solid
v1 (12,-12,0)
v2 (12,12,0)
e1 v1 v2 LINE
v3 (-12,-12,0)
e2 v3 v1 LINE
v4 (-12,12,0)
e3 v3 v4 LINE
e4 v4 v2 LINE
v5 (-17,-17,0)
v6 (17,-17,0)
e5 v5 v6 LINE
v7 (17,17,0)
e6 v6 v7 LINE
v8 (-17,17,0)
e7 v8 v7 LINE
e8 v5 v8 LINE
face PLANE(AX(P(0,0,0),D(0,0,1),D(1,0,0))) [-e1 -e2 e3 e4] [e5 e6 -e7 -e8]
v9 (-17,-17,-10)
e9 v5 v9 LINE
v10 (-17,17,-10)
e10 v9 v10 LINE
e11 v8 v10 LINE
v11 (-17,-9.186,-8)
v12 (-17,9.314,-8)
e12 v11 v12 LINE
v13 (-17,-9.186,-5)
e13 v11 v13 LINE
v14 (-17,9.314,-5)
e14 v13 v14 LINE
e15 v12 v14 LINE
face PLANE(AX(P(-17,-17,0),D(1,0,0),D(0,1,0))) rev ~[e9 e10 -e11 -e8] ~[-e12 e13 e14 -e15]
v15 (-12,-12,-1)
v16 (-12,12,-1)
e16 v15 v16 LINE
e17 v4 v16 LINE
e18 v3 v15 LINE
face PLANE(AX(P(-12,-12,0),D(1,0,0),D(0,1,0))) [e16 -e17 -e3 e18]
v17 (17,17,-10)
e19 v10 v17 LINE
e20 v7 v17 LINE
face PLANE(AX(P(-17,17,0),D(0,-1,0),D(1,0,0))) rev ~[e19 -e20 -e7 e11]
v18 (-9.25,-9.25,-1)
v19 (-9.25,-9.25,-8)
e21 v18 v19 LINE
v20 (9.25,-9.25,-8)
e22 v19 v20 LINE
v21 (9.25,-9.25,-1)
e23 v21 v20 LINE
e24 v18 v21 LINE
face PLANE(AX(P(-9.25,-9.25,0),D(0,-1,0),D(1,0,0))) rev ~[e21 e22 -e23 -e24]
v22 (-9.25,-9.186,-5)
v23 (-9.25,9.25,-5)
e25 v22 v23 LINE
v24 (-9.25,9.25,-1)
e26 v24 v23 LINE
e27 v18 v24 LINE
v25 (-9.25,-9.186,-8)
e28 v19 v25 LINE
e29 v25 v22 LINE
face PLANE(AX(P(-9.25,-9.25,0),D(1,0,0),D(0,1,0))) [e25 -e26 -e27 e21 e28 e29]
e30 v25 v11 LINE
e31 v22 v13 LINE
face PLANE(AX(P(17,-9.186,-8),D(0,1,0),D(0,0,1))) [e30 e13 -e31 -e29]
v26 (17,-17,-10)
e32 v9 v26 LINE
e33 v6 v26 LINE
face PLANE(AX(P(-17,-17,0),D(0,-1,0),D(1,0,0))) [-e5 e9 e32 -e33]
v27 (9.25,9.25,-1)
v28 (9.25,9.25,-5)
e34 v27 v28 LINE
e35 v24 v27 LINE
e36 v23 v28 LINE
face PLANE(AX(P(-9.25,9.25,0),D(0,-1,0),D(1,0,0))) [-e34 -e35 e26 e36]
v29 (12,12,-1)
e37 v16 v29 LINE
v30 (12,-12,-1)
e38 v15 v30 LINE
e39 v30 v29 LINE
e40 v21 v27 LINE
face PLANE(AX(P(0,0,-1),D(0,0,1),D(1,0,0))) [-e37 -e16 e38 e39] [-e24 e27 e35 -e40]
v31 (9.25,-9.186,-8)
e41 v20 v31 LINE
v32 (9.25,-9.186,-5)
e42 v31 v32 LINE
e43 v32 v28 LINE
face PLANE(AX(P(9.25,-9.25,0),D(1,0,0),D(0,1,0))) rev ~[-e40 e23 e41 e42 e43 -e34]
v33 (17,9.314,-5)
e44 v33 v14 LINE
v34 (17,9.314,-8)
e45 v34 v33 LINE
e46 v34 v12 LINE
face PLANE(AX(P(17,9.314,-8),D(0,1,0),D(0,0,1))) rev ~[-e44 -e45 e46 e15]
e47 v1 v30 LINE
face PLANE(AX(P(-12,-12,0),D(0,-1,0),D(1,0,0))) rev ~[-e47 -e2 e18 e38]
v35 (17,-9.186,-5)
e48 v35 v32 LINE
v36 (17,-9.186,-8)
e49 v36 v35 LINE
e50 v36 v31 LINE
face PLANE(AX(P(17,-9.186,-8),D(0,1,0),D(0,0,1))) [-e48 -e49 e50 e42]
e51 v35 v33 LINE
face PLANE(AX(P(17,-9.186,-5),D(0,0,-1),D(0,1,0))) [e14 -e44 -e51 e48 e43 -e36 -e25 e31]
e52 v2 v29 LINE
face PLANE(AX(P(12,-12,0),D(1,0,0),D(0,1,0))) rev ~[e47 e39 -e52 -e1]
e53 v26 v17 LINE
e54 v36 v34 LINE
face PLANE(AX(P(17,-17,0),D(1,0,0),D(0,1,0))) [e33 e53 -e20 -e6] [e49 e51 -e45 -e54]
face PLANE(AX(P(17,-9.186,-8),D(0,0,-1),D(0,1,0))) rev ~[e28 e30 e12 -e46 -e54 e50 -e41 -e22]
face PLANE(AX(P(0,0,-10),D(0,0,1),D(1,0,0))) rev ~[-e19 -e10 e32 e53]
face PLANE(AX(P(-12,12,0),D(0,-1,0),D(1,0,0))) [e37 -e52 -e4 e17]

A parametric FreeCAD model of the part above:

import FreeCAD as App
import Part
import Sketcher
from FreeCAD import Vector

doc = App.newDocument("Part")
body = doc.addObject("PartDesign::Body", "Body")

sketch1 = body.newObject("Sketcher::SketchObject", "Sketch")
sketch1.AttachmentSupport = (doc.getObject("XY_Plane"), [""])
sketch1.MapMode = "FlatFace"
sketch1.addGeometry(Part.LineSegment(Vector(-17, 17, 0), Vector(-17, -17, 0)), False)
sketch1.addGeometry(Part.LineSegment(Vector(-17, -17, 0), Vector(17, -17, 0)), False)
sketch1.addGeometry(Part.LineSegment(Vector(17, -17, 0), Vector(17, 17, 0)), False)
sketch1.addGeometry(Part.LineSegment(Vector(17, 17, 0), Vector(-17, 17, 0)), False)
sketch1.addConstraint(Sketcher.Constraint("Coincident", 0, 2, 1, 1))
sketch1.addConstraint(Sketcher.Constraint("Coincident", 1, 2, 2, 1))
sketch1.addConstraint(Sketcher.Constraint("Coincident", 2, 2, 3, 1))
sketch1.addConstraint(Sketcher.Constraint("Coincident", 3, 2, 0, 1))
sketch1.addConstraint(Sketcher.Constraint("Vertical", 0))
sketch1.addConstraint(Sketcher.Constraint("Horizontal", 1))
sketch1.addConstraint(Sketcher.Constraint("Vertical", 2))
sketch1.addConstraint(Sketcher.Constraint("Horizontal", 3))
sketch1.addConstraint(Sketcher.Constraint("Symmetric", 0, 2, 2, 2, -1, 1))
sketch1.addConstraint(Sketcher.Constraint("Equal", 3, 0))
sketch1.addConstraint(Sketcher.Constraint("DistanceX", 1, 1, 1, 2, 34.0))
pad1 = body.newObject("PartDesign::Pad", "Pad")
pad1.Profile = sketch1
pad1.Length = 10
pad1.Reversed = True

sketch2 = body.newObject("Sketcher::SketchObject", "Sketch001")
sketch2.AttachmentSupport = (doc.getObject("XY_Plane"), [""])
sketch2.MapMode = "FlatFace"
sketch2.addGeometry(Part.LineSegment(Vector(-12, 12, 0), Vector(-12, -12, 0)), False)
sketch2.addGeometry(Part.LineSegment(Vector(-12, -12, 0), Vector(12, -12, 0)), False)
sketch2.addGeometry(Part.LineSegment(Vector(12, -12, 0), Vector(12, 12, 0)), False)
sketch2.addGeometry(Part.LineSegment(Vector(12, 12, 0), Vector(-12, 12, 0)), False)
sketch2.addConstraint(Sketcher.Constraint("Coincident", 0, 2, 1, 1))
sketch2.addConstraint(Sketcher.Constraint("Coincident", 1, 2, 2, 1))
sketch2.addConstraint(Sketcher.Constraint("Coincident", 2, 2, 3, 1))
sketch2.addConstraint(Sketcher.Constraint("Coincident", 3, 2, 0, 1))
sketch2.addConstraint(Sketcher.Constraint("Vertical", 0))
sketch2.addConstraint(Sketcher.Constraint("Horizontal", 1))
sketch2.addConstraint(Sketcher.Constraint("Vertical", 2))
sketch2.addConstraint(Sketcher.Constraint("Horizontal", 3))
sketch2.addConstraint(Sketcher.Constraint("Symmetric", 0, 2, 2, 2, -1, 1))
sketch2.addConstraint(Sketcher.Constraint("Equal", 3, 0))
sketch2.addConstraint(Sketcher.Constraint("DistanceX", 1, 1, 1, 2, 24.0))
pocket1 = body.newObject("PartDesign::Pocket", "Pocket")
pocket1.Profile = sketch2
pocket1.Length = 1

sketch3 = body.newObject("Sketcher::SketchObject", "Sketch002")
sketch3.AttachmentSupport = (doc.getObject("XY_Plane"), [""])
sketch3.MapMode = "FlatFace"
sketch3.addGeometry(Part.LineSegment(Vector(-9.25, 9.25, 0), Vector(-9.25, -9.25, 0)), False)
sketch3.addGeometry(Part.LineSegment(Vector(-9.25, -9.25, 0), Vector(9.25, -9.25, 0)), False)
sketch3.addGeometry(Part.LineSegment(Vector(9.25, -9.25, 0), Vector(9.25, 9.25, 0)), False)
sketch3.addGeometry(Part.LineSegment(Vector(9.25, 9.25, 0), Vector(-9.25, 9.25, 0)), False)
sketch3.addConstraint(Sketcher.Constraint("Coincident", 0, 2, 1, 1))
sketch3.addConstraint(Sketcher.Constraint("Coincident", 1, 2, 2, 1))
sketch3.addConstraint(Sketcher.Constraint("Coincident", 2, 2, 3, 1))
sketch3.addConstraint(Sketcher.Constraint("Coincident", 3, 2, 0, 1))
sketch3.addConstraint(Sketcher.Constraint("Vertical", 0))
sketch3.addConstraint(Sketcher.Constraint("Horizontal", 1))
sketch3.addConstraint(Sketcher.Constraint("Vertical", 2))
sketch3.addConstraint(Sketcher.Constraint("Horizontal", 3))
sketch3.addConstraint(Sketcher.Constraint("Symmetric", 0, 2, 2, 2, -1, 1))
sketch3.addConstraint(Sketcher.Constraint("Equal", 3, 0))
sketch3.addConstraint(Sketcher.Constraint("DistanceX", 1, 1, 1, 2, 18.5))
pocket2 = body.newObject("PartDesign::Pocket", "Pocket001")
pocket2.Profile = sketch3
pocket2.Length = 8

sketch4 = body.newObject("Sketcher::SketchObject", "Sketch003")
sketch4.AttachmentSupport = (doc.getObject("YZ_Plane"), [""])
sketch4.MapMode = "FlatFace"
sketch4.AttachmentOffset = App.Placement(Vector(0, 0, 17), App.Rotation())
sketch4.addGeometry(Part.LineSegment(Vector(-9.186, -5, 0), Vector(-9.186, -8, 0)), False)
sketch4.addGeometry(Part.LineSegment(Vector(-9.186, -8, 0), Vector(9.314, -8, 0)), False)
sketch4.addGeometry(Part.LineSegment(Vector(9.314, -8, 0), Vector(9.314, -5, 0)), False)
sketch4.addGeometry(Part.LineSegment(Vector(9.314, -5, 0), Vector(-9.186, -5, 0)), False)
sketch4.addConstraint(Sketcher.Constraint("Coincident", 0, 2, 1, 1))
sketch4.addConstraint(Sketcher.Constraint("Coincident", 1, 2, 2, 1))
sketch4.addConstraint(Sketcher.Constraint("Coincident", 2, 2, 3, 1))
sketch4.addConstraint(Sketcher.Constraint("Coincident", 3, 2, 0, 1))
sketch4.addConstraint(Sketcher.Constraint("Vertical", 0))
sketch4.addConstraint(Sketcher.Constraint("Horizontal", 1))
sketch4.addConstraint(Sketcher.Constraint("Vertical", 2))
sketch4.addConstraint(Sketcher.Constraint("Horizontal", 3))
sketch4.addConstraint(Sketcher.Constraint("DistanceY", 0, 2, 0, 1, 3.0))
sketch4.addConstraint(Sketcher.Constraint("DistanceX", 1, 1, 1, 2, 18.5))
sketch4.addConstraint(Sketcher.Constraint("DistanceY", 0, 2, -1, 1, 8.0))
sketch4.addConstraint(Sketcher.Constraint("DistanceX", 0, 2, -1, 1, 9.186))
pocket3 = body.newObject("PartDesign::Pocket", "Pocket002")
pocket3.Profile = sketch4
pocket3.Length = 34

doc.recompute()
